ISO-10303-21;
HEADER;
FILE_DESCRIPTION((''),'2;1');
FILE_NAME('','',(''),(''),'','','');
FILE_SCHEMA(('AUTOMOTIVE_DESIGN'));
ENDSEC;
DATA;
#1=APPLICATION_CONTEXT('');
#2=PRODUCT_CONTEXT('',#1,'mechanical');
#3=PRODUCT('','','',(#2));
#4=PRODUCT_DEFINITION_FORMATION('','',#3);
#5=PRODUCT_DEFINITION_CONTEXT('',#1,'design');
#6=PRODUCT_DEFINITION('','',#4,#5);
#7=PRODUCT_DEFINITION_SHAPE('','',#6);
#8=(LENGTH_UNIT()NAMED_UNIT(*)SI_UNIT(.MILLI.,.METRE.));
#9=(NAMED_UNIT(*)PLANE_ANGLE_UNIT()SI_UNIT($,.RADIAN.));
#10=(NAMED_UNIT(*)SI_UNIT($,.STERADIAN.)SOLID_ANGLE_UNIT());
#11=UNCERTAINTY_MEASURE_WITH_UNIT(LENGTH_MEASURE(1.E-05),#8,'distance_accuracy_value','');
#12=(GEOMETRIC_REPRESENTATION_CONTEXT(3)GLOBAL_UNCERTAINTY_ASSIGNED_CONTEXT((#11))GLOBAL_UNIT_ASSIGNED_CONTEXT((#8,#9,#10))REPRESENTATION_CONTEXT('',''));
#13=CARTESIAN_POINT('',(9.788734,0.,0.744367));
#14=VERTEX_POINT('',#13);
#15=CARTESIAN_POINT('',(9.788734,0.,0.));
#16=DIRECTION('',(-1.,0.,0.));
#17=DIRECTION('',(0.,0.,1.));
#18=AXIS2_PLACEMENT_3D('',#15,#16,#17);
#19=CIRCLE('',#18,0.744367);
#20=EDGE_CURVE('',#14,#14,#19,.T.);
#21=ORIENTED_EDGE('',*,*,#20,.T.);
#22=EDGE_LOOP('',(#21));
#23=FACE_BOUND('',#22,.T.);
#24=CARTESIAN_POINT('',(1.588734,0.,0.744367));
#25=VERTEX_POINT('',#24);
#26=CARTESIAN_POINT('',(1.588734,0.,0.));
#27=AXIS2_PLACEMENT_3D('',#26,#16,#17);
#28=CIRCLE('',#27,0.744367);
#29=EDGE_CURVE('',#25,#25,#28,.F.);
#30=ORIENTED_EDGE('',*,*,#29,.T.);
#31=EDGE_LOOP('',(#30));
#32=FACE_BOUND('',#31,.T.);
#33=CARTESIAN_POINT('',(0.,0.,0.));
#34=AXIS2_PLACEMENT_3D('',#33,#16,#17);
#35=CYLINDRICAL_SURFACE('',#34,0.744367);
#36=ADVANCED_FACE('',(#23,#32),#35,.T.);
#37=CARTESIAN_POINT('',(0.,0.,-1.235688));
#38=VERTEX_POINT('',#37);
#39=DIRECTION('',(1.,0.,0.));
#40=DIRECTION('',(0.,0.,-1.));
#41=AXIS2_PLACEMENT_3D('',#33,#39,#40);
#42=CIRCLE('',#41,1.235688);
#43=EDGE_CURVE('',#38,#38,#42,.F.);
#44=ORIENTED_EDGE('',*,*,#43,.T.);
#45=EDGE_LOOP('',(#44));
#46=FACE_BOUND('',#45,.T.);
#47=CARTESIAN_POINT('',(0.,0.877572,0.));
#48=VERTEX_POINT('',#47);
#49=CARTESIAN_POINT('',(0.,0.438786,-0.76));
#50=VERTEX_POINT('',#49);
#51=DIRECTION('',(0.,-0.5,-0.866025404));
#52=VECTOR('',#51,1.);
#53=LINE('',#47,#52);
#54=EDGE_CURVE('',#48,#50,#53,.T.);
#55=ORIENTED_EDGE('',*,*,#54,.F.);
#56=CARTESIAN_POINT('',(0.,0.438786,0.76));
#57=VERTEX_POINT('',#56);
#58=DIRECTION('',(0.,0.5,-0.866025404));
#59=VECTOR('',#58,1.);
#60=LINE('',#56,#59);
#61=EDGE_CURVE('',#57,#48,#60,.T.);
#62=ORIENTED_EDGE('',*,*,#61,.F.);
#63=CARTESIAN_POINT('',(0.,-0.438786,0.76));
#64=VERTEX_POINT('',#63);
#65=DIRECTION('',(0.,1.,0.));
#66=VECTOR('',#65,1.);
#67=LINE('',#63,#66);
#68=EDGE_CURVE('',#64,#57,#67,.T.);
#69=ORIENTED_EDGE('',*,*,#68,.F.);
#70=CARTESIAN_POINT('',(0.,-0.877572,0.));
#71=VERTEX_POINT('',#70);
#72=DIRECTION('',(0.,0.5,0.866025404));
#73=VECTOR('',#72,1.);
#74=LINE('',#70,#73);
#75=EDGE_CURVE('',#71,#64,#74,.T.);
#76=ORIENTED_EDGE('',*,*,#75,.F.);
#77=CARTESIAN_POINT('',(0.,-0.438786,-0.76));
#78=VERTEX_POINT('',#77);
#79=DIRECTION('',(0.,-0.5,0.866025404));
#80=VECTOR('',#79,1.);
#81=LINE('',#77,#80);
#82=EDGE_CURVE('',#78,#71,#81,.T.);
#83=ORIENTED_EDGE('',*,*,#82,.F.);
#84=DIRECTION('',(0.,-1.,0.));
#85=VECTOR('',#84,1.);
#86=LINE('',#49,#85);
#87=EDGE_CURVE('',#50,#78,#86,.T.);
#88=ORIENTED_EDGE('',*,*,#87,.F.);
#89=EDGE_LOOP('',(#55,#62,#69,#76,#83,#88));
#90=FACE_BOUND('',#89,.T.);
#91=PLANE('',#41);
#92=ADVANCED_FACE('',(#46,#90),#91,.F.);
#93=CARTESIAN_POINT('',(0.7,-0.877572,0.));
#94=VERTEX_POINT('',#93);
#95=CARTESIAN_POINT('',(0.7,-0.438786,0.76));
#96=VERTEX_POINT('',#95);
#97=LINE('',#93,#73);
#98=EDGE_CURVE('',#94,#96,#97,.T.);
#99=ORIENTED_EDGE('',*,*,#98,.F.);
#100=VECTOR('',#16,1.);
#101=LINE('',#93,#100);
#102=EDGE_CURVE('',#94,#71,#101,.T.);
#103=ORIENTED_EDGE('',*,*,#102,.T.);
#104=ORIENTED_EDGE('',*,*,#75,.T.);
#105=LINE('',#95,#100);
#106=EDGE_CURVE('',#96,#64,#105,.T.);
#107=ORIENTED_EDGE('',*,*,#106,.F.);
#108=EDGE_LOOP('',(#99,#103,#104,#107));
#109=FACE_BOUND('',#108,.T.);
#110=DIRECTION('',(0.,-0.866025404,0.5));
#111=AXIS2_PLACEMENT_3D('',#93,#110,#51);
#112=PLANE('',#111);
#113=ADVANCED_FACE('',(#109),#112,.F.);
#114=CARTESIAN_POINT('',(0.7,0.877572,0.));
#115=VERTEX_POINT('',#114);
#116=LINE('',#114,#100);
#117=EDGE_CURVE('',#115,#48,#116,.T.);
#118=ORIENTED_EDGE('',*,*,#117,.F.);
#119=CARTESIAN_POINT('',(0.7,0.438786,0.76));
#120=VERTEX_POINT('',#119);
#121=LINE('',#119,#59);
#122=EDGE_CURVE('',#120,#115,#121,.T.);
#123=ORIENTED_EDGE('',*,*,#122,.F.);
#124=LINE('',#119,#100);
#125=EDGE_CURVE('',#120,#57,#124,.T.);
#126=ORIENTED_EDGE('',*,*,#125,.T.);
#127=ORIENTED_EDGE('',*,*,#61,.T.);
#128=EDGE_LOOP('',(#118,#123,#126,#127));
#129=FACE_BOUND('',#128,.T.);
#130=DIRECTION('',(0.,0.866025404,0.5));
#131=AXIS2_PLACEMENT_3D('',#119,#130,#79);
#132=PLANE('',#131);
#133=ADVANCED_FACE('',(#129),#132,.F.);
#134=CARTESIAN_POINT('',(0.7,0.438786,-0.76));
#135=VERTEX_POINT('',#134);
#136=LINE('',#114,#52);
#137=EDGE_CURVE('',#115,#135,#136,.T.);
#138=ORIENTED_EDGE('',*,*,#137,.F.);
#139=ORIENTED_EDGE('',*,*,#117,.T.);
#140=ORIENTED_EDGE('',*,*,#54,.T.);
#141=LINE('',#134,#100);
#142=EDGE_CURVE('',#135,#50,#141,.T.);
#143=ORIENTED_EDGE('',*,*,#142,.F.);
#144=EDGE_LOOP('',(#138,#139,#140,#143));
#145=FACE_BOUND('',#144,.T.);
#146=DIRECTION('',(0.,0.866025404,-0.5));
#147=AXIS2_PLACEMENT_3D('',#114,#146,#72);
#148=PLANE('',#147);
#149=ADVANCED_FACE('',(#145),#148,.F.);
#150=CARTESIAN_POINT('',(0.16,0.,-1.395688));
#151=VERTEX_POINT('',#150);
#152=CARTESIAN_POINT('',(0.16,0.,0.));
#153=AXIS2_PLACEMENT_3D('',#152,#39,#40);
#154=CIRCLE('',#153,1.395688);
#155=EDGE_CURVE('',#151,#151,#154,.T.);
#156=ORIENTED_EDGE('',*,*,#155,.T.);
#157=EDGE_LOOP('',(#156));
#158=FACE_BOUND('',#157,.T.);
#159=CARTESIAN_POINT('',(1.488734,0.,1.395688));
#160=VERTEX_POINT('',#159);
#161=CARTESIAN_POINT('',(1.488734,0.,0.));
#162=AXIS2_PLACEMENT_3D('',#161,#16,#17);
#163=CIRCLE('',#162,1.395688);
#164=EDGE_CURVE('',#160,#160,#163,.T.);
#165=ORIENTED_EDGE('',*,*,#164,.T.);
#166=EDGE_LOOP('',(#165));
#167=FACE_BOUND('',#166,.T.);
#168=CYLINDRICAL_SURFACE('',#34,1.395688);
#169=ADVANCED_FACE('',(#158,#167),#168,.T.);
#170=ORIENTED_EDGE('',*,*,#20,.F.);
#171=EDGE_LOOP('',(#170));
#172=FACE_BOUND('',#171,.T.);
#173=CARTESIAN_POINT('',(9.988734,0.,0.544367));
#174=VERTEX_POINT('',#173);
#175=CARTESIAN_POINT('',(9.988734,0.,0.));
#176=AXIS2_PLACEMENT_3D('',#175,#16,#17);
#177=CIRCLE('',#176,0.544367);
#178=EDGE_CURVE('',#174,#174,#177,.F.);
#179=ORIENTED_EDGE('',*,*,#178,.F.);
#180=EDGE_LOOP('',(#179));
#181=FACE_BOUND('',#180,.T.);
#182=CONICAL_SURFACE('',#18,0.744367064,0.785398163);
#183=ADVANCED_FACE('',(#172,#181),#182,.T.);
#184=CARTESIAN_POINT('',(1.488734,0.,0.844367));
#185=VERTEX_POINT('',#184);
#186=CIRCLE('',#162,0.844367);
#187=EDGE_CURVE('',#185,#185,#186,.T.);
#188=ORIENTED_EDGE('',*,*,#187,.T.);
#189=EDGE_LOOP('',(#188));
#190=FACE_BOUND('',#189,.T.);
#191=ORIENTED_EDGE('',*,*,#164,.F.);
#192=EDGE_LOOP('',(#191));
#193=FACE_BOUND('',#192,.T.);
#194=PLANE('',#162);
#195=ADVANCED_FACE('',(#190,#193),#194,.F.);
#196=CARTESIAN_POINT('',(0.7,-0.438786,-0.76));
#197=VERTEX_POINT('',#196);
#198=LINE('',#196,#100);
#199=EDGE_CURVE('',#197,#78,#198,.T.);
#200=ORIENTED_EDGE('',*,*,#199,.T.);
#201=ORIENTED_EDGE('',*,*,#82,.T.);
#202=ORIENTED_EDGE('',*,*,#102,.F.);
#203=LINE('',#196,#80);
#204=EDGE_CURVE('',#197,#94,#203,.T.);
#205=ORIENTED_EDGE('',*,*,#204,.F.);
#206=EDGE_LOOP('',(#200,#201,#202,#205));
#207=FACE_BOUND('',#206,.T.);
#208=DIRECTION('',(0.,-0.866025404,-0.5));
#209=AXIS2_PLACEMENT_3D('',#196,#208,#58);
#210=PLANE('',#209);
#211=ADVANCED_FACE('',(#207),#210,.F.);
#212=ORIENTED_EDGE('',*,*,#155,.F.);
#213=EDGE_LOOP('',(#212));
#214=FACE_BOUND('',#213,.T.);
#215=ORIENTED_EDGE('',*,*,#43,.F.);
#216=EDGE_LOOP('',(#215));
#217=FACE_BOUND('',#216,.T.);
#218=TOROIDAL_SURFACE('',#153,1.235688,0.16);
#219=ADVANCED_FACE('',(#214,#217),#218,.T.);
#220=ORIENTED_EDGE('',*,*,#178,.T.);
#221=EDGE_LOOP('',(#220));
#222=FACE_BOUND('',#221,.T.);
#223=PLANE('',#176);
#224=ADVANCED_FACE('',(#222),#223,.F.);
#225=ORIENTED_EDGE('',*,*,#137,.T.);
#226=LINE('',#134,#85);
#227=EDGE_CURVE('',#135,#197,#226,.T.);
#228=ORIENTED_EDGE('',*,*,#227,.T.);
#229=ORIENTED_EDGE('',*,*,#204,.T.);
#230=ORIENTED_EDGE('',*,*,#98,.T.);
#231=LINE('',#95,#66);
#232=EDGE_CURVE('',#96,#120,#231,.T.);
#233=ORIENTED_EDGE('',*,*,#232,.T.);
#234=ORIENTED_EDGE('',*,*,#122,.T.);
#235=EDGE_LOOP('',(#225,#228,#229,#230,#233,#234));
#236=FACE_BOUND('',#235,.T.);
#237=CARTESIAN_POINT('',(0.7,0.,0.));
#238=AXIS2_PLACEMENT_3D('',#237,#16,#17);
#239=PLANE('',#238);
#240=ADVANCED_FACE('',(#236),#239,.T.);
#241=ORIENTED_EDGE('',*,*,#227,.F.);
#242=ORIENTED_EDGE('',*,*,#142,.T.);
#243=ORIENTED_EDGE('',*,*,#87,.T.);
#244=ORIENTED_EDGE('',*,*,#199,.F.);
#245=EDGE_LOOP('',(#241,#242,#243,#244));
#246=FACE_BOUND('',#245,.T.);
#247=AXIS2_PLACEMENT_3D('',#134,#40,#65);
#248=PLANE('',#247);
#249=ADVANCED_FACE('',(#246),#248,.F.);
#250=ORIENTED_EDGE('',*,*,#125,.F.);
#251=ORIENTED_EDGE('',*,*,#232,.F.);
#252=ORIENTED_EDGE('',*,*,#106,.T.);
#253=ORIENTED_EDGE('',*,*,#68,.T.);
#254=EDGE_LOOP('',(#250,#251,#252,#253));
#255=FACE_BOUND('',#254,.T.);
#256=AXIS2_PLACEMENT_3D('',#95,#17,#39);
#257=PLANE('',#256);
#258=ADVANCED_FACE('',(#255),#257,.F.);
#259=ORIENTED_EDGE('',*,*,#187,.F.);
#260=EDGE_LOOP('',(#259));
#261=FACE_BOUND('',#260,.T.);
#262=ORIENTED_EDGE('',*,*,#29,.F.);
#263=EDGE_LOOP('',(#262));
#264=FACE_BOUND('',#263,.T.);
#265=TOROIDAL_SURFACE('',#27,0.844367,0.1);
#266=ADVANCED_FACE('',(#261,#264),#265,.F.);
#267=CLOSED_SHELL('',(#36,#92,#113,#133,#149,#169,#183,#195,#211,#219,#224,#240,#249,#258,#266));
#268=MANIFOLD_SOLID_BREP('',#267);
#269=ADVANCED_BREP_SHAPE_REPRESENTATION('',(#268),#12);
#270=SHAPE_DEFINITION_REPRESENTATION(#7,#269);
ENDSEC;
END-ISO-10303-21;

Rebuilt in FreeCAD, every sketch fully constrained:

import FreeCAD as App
import Part
import Sketcher
from FreeCAD import Vector
Q = App.Units.Quantity


def edges_at(feature, points):
    """Names of the edges that pass closest to the given points."""
    edges = feature.Shape.Edges
    near = lambda p: min(range(len(edges)), key=lambda i: edges[i].distToShape(Part.Vertex(*p))[0])
    return sorted({f"Edge{near(p) + 1}" for p in points})


def add_polygon(sketch, points):
    """Adds a closed chain of lines whose ends are joined by coincident constraints."""
    first, n = sketch.GeometryCount, len(points)
    for a, b in zip(points, points[1:] + points[:1]):
        sketch.addGeometry(Part.LineSegment(App.Vector(*a, 0), App.Vector(*b, 0)), False)
    for i in range(n):
        sketch.addConstraint(Sketcher.Constraint("Coincident", first + i, 2, first + (i + 1) % n, 1))

doc = App.newDocument("Part")
params = doc.addObject("Spreadsheet::Sheet", "Params")
for row, (alias, value) in enumerate([
    ("sketch1_width", "8.5 mm"),
    ("revolution_angle", "360 deg"),
    ("fillet_radius", "0.1 mm"),
    ("fillet2_radius", "0.16 mm"),
    ("chamfer_size", "0.2 mm"),
    ("pocket1_length", "0.7 mm"),
], start=1):
    params.set(f"A{row}", alias)
    params.set(f"B{row}", "=" + value)
    params.setAlias(f"B{row}", alias)

body = doc.addObject("PartDesign::Body", "Body")

# Sketch on XY plane
sketch1 = doc.addObject("Sketcher::SketchObject", "Sketch")
body.addObject(sketch1)
sketch1.AttachmentSupport = (doc.XY_Plane, [""])
sketch1.MapMode = "FlatFace"
add_polygon(sketch1, [(0, 1.4), (0, 0), (10, 0), (10, 0.7), (1.5, 0.7), (1.5, 1.4)])  # lines 0-5
sketch1.addConstraint([
    Sketcher.Constraint("Vertical", 0),
    Sketcher.Constraint("Horizontal", 1),
    Sketcher.Constraint("Vertical", 2),
    Sketcher.Constraint("Horizontal", 3),
    Sketcher.Constraint("Vertical", 4),
    Sketcher.Constraint("Horizontal", 5),
    Sketcher.Constraint("Coincident", 0, 2, -1, 1),
    Sketcher.Constraint("DistanceX", 3, 2, 3, 1, Q("8.5 mm")),
    Sketcher.Constraint("DistanceY", 0, 2, 0, 1, Q("1.395688 mm")),
    Sketcher.Constraint("DistanceY", 4, 1, 4, 2, Q("0.651321 mm")),
    Sketcher.Constraint("DistanceX", 1, 1, 1, 2, Q("9.988734 mm")),
])
sketch1.setExpression("Constraints[13]", "Params.sketch1_width")
revolution = doc.addObject("PartDesign::Revolution", "Revolution")
body.addObject(revolution)
revolution.Profile = sketch1
revolution.ReferenceAxis = (sketch1, ["H_Axis"])
revolution.setExpression("Angle", "Params.revolution_angle")
doc.recompute()

fillet = doc.addObject("PartDesign::Fillet", "Fillet")
body.addObject(fillet)
fillet.Base = (revolution, edges_at(revolution, [(1.489, 0, -0.744)]))
fillet.setExpression("Radius", "Params.fillet_radius")
doc.recompute()

fillet2 = doc.addObject("PartDesign::Fillet", "Fillet001")
body.addObject(fillet2)
fillet2.Base = (fillet, edges_at(fillet, [(0, 0, -1.396)]))
fillet2.setExpression("Radius", "Params.fillet2_radius")
doc.recompute()

chamfer = doc.addObject("PartDesign::Chamfer", "Chamfer")
body.addObject(chamfer)
chamfer.Base = (fillet2, edges_at(fillet2, [(9.989, 0, -0.744)]))
chamfer.setExpression("Size", "Params.chamfer_size")

# Sketch on YZ plane
sketch2 = doc.addObject("Sketcher::SketchObject", "Sketch001")
body.addObject(sketch2)
sketch2.AttachmentSupport = (doc.YZ_Plane, [""])
sketch2.MapMode = "FlatFace"
add_polygon(sketch2, [(0.9, 0), (0.4, -0.8), (-0.4, -0.8), (-0.9, 0), (-0.4, 0.8), (0.4, 0.8)])  # lines 0-5
sketch2.addConstraint([
    Sketcher.Constraint("Horizontal", 1),
    Sketcher.Constraint("Horizontal", 4),
    Sketcher.Constraint("Symmetric", 0, 2, 3, 2, -1, 1),
    Sketcher.Constraint("Symmetric", 2, 2, 5, 2, -1, 1),
    Sketcher.Constraint("PointOnObject", 2, 2, -1),
    Sketcher.Constraint("Parallel", 2, 5),
    Sketcher.Constraint("Vertical", 1, 2, 3, 2),
    Sketcher.Constraint("Angle", 0, Q("-120 deg")),
    Sketcher.Constraint("DistanceY", 0, 2, -1, 1, Q("0.76 mm")),
    Sketcher.Constraint("DistanceX", 1, 2, 1, 1, Q("0.877572 mm")),
])
pocket1 = doc.addObject("PartDesign::Pocket", "Pocket")
body.addObject(pocket1)
pocket1.Profile = sketch2
pocket1.setExpression("Length", "Params.pocket1_length")
pocket1.Reversed = True

doc.recompute()
